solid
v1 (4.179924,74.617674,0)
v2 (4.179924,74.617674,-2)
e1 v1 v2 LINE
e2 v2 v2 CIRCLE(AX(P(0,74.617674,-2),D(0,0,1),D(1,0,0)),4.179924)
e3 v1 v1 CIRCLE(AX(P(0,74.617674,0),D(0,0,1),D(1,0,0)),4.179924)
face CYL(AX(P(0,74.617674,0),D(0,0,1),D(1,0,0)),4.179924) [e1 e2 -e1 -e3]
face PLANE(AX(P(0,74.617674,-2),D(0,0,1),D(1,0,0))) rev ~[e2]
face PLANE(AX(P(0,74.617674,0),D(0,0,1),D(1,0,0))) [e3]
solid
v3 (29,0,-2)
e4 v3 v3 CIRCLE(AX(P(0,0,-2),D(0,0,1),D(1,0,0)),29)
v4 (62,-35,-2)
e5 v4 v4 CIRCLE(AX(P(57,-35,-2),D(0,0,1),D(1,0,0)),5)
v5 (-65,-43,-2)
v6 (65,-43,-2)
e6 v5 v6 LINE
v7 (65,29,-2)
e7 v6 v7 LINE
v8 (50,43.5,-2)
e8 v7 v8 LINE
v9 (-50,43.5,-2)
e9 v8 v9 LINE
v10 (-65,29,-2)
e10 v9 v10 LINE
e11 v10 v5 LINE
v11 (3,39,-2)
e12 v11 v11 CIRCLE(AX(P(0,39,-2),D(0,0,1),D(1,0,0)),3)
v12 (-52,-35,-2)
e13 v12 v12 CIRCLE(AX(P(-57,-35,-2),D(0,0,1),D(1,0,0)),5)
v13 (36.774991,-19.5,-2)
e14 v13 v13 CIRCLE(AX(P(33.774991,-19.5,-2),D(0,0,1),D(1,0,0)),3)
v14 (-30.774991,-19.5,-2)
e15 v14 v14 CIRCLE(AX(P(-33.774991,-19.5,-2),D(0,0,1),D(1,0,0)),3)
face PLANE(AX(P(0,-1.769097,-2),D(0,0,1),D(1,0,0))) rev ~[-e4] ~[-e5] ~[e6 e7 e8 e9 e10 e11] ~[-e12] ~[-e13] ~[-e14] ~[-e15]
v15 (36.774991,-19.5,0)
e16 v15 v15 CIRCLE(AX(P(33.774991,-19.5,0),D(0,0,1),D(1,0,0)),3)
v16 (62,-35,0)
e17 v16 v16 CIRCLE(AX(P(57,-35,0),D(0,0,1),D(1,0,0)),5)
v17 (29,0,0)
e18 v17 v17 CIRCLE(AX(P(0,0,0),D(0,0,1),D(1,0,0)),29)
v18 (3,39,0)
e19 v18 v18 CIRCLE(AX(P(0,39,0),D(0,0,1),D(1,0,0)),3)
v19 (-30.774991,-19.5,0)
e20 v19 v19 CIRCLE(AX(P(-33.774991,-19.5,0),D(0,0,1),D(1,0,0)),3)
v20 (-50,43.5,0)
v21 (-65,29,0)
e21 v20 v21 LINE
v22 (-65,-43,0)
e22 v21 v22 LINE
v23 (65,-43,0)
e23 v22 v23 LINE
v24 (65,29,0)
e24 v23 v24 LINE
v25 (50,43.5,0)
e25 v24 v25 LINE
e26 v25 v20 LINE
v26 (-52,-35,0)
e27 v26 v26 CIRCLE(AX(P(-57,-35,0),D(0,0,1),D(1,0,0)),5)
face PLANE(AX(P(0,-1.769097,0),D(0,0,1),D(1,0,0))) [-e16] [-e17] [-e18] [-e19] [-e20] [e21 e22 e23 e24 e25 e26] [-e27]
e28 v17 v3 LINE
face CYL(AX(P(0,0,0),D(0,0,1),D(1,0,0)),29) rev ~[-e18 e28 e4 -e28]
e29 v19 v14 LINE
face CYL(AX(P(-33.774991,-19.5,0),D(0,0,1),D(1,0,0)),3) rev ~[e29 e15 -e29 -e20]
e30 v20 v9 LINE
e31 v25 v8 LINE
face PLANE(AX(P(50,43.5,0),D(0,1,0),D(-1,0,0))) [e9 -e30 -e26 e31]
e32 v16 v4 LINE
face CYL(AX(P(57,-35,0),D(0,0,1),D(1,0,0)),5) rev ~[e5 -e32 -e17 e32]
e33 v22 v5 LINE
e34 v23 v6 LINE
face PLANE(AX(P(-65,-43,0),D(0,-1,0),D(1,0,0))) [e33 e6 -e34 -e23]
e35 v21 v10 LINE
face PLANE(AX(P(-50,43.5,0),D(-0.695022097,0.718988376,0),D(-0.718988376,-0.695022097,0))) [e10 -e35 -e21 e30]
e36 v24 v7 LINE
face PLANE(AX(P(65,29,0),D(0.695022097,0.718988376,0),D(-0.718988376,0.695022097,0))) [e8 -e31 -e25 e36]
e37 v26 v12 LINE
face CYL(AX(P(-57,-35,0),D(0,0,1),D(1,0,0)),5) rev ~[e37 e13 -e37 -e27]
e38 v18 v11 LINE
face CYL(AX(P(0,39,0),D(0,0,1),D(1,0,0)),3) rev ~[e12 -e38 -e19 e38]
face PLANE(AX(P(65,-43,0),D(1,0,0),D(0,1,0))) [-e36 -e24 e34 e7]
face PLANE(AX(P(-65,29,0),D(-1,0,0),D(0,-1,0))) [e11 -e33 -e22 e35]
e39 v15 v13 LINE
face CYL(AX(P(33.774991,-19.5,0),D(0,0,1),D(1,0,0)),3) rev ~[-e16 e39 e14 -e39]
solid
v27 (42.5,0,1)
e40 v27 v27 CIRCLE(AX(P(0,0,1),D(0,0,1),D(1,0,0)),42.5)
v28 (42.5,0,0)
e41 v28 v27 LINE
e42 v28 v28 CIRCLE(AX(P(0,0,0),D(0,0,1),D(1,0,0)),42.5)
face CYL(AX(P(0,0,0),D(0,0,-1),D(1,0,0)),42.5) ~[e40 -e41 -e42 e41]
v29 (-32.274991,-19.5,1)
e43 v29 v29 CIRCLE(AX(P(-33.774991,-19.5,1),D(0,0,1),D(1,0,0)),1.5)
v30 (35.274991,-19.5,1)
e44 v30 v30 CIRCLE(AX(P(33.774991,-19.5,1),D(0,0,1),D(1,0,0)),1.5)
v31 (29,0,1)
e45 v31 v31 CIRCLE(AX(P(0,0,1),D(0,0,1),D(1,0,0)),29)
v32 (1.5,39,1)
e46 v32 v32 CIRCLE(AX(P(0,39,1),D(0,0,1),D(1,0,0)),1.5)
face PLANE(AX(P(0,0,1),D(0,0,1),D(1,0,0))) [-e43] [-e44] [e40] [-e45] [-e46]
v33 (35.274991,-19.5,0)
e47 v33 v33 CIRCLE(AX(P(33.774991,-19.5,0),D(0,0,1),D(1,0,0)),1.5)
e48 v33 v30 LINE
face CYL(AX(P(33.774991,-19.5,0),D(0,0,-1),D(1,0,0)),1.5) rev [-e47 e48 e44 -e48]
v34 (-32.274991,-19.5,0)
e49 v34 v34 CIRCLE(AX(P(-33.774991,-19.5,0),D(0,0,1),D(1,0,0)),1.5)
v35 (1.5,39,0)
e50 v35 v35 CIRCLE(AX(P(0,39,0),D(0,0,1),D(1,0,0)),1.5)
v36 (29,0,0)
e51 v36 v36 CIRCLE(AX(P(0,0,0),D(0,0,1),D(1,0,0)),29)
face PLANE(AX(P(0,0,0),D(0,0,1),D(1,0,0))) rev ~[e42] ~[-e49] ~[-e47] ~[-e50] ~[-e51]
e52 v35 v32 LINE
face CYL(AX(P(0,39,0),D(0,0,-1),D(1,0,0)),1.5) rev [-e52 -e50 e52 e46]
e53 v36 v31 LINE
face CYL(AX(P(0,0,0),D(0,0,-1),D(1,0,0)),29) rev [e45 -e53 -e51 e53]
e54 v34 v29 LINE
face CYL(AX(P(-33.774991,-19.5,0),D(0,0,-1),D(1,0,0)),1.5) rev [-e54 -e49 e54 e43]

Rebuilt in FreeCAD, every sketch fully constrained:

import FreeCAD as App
import Part
import Sketcher

doc = App.newDocument("Part")
body = doc.addObject("PartDesign::Body", "Body")
body.AllowCompound = True

# Sketch on XY plane
sketch1 = body.newObject("Sketcher::SketchObject", "Sketch")
sketch1.AttachmentSupport = (doc.getObject("XY_Plane"), [""])
sketch1.MapMode = "FlatFace"
sketch1.addGeometry([
    Part.LineSegment(App.Vector(-65, 29, 0), App.Vector(-65, -43, 0)),  # 0
    Part.LineSegment(App.Vector(-65, -43, 0), App.Vector(65, -43, 0)),  # 1
    Part.LineSegment(App.Vector(65, -43, 0), App.Vector(65, 29, 0)),  # 2
    Part.LineSegment(App.Vector(65, 29, 0), App.Vector(50, 43.5, 0)),  # 3
    Part.LineSegment(App.Vector(50, 43.5, 0), App.Vector(-50, 43.5, 0)),  # 4
    Part.LineSegment(App.Vector(-50, 43.5, 0), App.Vector(-65, 29, 0)),  # 5
    Part.Circle(App.Vector(-57, -35, 0), App.Vector(0, 0, 1), 5),  # 6
    Part.Circle(App.Vector(-33.8, -19.5, 0), App.Vector(0, 0, 1), 3),  # 7
    Part.Circle(App.Vector(57, -35, 0), App.Vector(0, 0, 1), 5),  # 8
    Part.Circle(App.Vector(0, 0, 0), App.Vector(0, 0, 1), 29),  # 9
    Part.Circle(App.Vector(33.8, -19.5, 0), App.Vector(0, 0, 1), 3),  # 10
    Part.Circle(App.Vector(0, 39, 0), App.Vector(0, 0, 1), 3),  # 11
    Part.Circle(App.Vector(0, 74.6, 0), App.Vector(0, 0, 1), 4.2),  # 12
], False)
sketch1.addConstraint([
    Sketcher.Constraint("Coincident", 0, 2, 1, 1),
    Sketcher.Constraint("Coincident", 1, 2, 2, 1),
    Sketcher.Constraint("Coincident", 2, 2, 3, 1),
    Sketcher.Constraint("Coincident", 3, 2, 4, 1),
    Sketcher.Constraint("Coincident", 4, 2, 5, 1),
    Sketcher.Constraint("Coincident", 5, 2, 0, 1),
    Sketcher.Constraint("Vertical", 0),
    Sketcher.Constraint("Horizontal", 1),
    Sketcher.Constraint("Vertical", 2),
    Sketcher.Constraint("Horizontal", 4),
    Sketcher.Constraint("Coincident", 9, 3, -1, 1),
    Sketcher.Constraint("Equal", 6, 8),
    Sketcher.Constraint("Equal", 7, 10),
    Sketcher.Constraint("Equal", 10, 11),
    Sketcher.Constraint("Symmetric", 6, 3, 8, 3, -2),
    Sketcher.Constraint("Symmetric", 7, 3, 10, 3, -2),
    Sketcher.Constraint("Symmetric", 2, 2, 5, 2, -2),
    Sketcher.Constraint("PointOnObject", 11, 3, -2),
    Sketcher.Constraint("PointOnObject", 12, 3, -2),
    Sketcher.Constraint("Equal", 3, 5),
    Sketcher.Constraint("Diameter", 6, 10.0),
    Sketcher.Constraint("Diameter", 7, 6.0),
    Sketcher.Constraint("Diameter", 9, 58.0),
    Sketcher.Constraint("DistanceX", 1, 1, 1, 2, 130.0),
    Sketcher.Constraint("DistanceX", 4, 2, 4, 1, 100.0),
    Sketcher.Constraint("DistanceY", 0, 2, 0, 1, 72.0),
    Sketcher.Constraint("DistanceX", 6, 3, -1, 1, 57.0),
    Sketcher.Constraint("DistanceY", 6, 3, -1, 1, 35.0),
    Sketcher.Constraint("DistanceY", -1, 1, 11, 3, 39.0),
    Sketcher.Constraint("DistanceY", 0, 2, -1, 1, 43.0),
    Sketcher.Constraint("DistanceY", 10, 3, 3, 2, 63.0),
    Sketcher.Constraint("DistanceY", 7, 3, -1, 1, 19.5),
    Sketcher.Constraint("Diameter", 12, 8.359848),
    Sketcher.Constraint("DistanceX", 7, 3, -1, 1, 33.774991),
    Sketcher.Constraint("DistanceY", -1, 1, 12, 3, 74.617674),
])
pad1 = body.newObject("PartDesign::Pad", "Pad")
pad1.Profile = sketch1
pad1.Length = 2
pad1.Reversed = True
body2 = doc.addObject("PartDesign::Body", "Body001")

# Sketch on XY plane
sketch2 = body2.newObject("Sketcher::SketchObject", "Sketch001")
sketch2.AttachmentSupport = (doc.getObject("XY_Plane001"), [""])
sketch2.MapMode = "FlatFace"
sketch2.addGeometry([
    Part.Circle(App.Vector(0, 0, 0), App.Vector(0, 0, 1), 42.5),  # 0
    Part.Circle(App.Vector(-33.8, -19.5, 0), App.Vector(0, 0, 1), 1.5),  # 1
    Part.Circle(App.Vector(33.8, -19.5, 0), App.Vector(0, 0, 1), 1.5),  # 2
    Part.Circle(App.Vector(0, 0, 0), App.Vector(0, 0, 1), 29),  # 3
    Part.Circle(App.Vector(0, 39, 0), App.Vector(0, 0, 1), 1.5),  # 4
], False)
sketch2.addConstraint([
    Sketcher.Constraint("Coincident", 0, 3, -1, 1),
    Sketcher.Constraint("Coincident", 3, 3, -1, 1),
    Sketcher.Constraint("Equal", 1, 2),
    Sketcher.Constraint("Equal", 2, 4),
    Sketcher.Constraint("Symmetric", 1, 3, 2, 3, -2),
    Sketcher.Constraint("PointOnObject", 4, 3, -2),
    Sketcher.Constraint("Diameter", 0, 85.0),
    Sketcher.Constraint("Diameter", 1, 3.0),
    Sketcher.Constraint("Diameter", 3, 58.0),
    Sketcher.Constraint("DistanceY", -1, 1, 4, 3, 39.0),
    Sketcher.Constraint("DistanceY", 1, 3, -1, 1, 19.5),
    Sketcher.Constraint("DistanceX", 1, 3, -1, 1, 33.774991),
])
pad2 = body2.newObject("PartDesign::Pad", "Pad001")
pad2.Profile = sketch2
pad2.Length = 1

doc.recompute()
